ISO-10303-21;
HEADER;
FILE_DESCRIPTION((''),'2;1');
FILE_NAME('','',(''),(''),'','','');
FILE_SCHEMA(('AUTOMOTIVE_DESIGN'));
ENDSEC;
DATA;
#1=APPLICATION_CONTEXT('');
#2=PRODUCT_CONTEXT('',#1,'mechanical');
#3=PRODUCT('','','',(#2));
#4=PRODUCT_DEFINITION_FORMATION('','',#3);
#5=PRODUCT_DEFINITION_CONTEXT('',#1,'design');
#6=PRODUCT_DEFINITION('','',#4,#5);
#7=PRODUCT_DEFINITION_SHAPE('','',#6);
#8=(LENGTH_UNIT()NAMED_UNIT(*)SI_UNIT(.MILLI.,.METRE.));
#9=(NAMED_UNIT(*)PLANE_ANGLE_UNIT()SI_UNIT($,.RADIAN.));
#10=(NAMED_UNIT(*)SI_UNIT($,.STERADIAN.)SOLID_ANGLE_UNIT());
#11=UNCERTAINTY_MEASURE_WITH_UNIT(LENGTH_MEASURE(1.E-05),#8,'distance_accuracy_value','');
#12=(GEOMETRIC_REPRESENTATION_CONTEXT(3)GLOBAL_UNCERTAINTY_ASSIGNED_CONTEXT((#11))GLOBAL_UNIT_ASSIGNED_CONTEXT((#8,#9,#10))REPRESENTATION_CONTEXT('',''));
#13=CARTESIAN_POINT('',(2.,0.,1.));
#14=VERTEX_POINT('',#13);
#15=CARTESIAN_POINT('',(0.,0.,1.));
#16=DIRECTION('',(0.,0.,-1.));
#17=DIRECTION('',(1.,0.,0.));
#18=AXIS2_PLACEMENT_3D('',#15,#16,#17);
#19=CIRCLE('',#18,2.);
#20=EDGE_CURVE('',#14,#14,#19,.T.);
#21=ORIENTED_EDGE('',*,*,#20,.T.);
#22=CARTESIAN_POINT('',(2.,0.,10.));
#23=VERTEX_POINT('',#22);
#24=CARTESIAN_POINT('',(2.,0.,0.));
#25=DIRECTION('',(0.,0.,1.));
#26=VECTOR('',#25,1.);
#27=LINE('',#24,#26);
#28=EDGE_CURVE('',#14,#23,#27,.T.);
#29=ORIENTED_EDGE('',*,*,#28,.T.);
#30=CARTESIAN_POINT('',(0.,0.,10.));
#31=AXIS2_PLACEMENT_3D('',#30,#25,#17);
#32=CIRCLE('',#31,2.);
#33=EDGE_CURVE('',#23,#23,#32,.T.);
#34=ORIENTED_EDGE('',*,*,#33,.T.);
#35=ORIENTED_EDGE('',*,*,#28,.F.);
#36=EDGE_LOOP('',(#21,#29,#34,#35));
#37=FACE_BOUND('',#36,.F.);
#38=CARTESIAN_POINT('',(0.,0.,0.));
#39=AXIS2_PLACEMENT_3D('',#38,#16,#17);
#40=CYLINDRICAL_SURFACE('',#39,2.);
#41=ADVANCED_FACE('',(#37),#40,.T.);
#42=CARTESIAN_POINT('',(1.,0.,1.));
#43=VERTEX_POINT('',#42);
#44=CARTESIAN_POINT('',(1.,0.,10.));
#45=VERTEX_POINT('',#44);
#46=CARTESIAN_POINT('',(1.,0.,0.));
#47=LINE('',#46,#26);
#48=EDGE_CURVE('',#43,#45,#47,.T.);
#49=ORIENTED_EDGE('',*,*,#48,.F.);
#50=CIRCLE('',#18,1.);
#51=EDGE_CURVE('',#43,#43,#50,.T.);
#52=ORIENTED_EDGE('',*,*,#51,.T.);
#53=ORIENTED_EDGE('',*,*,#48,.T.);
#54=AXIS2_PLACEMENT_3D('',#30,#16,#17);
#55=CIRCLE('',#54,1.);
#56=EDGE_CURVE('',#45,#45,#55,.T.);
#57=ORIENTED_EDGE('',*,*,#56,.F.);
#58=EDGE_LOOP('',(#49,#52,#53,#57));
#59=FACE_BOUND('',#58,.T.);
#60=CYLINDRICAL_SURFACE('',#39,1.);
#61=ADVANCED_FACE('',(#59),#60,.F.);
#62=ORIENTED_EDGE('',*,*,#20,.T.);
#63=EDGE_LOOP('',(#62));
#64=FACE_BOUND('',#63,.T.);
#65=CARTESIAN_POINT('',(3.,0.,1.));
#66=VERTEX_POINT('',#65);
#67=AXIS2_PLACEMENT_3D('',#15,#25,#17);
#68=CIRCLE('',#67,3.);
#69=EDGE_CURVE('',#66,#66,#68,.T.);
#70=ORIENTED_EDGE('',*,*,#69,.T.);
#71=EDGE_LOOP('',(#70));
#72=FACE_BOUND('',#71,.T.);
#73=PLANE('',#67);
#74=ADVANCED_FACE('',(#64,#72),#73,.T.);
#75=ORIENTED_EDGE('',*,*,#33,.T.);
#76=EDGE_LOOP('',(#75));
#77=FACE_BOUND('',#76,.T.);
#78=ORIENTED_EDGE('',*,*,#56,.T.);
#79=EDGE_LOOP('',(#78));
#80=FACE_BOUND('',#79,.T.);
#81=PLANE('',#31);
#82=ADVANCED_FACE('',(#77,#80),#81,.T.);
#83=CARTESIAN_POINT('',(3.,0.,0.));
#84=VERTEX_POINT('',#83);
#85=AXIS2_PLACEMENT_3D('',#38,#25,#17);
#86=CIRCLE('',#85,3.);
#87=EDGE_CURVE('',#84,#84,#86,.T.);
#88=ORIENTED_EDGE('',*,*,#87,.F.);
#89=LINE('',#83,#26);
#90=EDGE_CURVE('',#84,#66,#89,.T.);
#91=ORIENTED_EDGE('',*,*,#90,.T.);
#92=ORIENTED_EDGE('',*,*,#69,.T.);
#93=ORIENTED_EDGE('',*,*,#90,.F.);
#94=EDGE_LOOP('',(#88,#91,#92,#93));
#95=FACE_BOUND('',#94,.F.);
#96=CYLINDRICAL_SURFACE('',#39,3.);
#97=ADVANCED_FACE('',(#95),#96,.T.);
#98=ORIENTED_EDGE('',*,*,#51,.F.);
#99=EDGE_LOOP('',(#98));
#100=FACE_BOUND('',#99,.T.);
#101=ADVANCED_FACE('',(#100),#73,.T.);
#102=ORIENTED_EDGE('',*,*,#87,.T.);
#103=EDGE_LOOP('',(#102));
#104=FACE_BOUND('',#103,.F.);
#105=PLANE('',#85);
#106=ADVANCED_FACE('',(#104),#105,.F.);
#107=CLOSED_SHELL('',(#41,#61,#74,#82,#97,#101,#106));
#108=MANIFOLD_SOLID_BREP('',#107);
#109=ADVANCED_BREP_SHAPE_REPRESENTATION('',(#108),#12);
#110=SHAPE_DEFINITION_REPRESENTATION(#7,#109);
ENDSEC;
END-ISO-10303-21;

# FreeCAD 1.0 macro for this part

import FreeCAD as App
import Part
import Sketcher

doc = App.newDocument("Part")
body = doc.addObject("PartDesign::Body", "Body")

# Sketch on XY plane
sketch1 = doc.addObject("Sketcher::SketchObject", "Sketch")
body.addObject(sketch1)
sketch1.AttachmentSupport = (doc.XY_Plane, [""])
sketch1.MapMode = "FlatFace"
sketch1.addGeometry(Part.Circle(App.Vector(0, 0, 0), App.Vector(0, 0, 1), 3), False)
sketch1.addConstraint([
    Sketcher.Constraint("Coincident", 0, 3, -1, 1),
    Sketcher.Constraint("Diameter", 0, 6.0),
])
pad1 = doc.addObject("PartDesign::Pad", "Pad")
body.addObject(pad1)
pad1.Profile = sketch1
pad1.Length = 1
body2 = doc.addObject("PartDesign::Body", "Body001")

# Sketch on XY plane
sketch2 = doc.addObject("Sketcher::SketchObject", "Sketch001")
body2.addObject(sketch2)
sketch2.AttachmentSupport = (doc.getObject("XY_Plane001"), [""])
sketch2.MapMode = "FlatFace"
sketch2.addGeometry(Part.Circle(App.Vector(0, 0, 0), App.Vector(0, 0, 1), 1), False)
sketch2.addConstraint([
    Sketcher.Constraint("Coincident", 0, 3, -1, 1),
    Sketcher.Constraint("Diameter", 0, 2.0),
])
pad2 = doc.addObject("PartDesign::Pad", "Pad001")
body2.addObject(pad2)
pad2.Profile = sketch2
pad2.Length = 11
body3 = doc.addObject("PartDesign::Body", "Body002")

# Sketch on XY plane
sketch3 = doc.addObject("Sketcher::SketchObject", "Sketch002")
body3.addObject(sketch3)
sketch3.AttachmentSupport = (doc.getObject("XY_Plane002"), [""])
sketch3.MapMode = "FlatFace"
sketch3.addGeometry(Part.Circle(App.Vector(0, 0, 0), App.Vector(0, 0, 1), 2), False)
sketch3.addConstraint([
    Sketcher.Constraint("Coincident", 0, 3, -1, 1),
    Sketcher.Constraint("Diameter", 0, 4.0),
])
pad3 = doc.addObject("PartDesign::Pad", "Pad002")
body3.addObject(pad3)
pad3.Profile = sketch3
pad3.Length = 10
doc.recompute()

boolean = doc.addObject("PartDesign::Boolean", "Boolean")
body3.addObject(boolean)
boolean.Type = "Cut"
boolean.addObjects([body2])
doc.recompute()

boolean2 = doc.addObject("PartDesign::Boolean", "Boolean001")
body3.addObject(boolean2)
boolean2.Type = "Fuse"
boolean2.addObjects([body])

doc.recompute()
